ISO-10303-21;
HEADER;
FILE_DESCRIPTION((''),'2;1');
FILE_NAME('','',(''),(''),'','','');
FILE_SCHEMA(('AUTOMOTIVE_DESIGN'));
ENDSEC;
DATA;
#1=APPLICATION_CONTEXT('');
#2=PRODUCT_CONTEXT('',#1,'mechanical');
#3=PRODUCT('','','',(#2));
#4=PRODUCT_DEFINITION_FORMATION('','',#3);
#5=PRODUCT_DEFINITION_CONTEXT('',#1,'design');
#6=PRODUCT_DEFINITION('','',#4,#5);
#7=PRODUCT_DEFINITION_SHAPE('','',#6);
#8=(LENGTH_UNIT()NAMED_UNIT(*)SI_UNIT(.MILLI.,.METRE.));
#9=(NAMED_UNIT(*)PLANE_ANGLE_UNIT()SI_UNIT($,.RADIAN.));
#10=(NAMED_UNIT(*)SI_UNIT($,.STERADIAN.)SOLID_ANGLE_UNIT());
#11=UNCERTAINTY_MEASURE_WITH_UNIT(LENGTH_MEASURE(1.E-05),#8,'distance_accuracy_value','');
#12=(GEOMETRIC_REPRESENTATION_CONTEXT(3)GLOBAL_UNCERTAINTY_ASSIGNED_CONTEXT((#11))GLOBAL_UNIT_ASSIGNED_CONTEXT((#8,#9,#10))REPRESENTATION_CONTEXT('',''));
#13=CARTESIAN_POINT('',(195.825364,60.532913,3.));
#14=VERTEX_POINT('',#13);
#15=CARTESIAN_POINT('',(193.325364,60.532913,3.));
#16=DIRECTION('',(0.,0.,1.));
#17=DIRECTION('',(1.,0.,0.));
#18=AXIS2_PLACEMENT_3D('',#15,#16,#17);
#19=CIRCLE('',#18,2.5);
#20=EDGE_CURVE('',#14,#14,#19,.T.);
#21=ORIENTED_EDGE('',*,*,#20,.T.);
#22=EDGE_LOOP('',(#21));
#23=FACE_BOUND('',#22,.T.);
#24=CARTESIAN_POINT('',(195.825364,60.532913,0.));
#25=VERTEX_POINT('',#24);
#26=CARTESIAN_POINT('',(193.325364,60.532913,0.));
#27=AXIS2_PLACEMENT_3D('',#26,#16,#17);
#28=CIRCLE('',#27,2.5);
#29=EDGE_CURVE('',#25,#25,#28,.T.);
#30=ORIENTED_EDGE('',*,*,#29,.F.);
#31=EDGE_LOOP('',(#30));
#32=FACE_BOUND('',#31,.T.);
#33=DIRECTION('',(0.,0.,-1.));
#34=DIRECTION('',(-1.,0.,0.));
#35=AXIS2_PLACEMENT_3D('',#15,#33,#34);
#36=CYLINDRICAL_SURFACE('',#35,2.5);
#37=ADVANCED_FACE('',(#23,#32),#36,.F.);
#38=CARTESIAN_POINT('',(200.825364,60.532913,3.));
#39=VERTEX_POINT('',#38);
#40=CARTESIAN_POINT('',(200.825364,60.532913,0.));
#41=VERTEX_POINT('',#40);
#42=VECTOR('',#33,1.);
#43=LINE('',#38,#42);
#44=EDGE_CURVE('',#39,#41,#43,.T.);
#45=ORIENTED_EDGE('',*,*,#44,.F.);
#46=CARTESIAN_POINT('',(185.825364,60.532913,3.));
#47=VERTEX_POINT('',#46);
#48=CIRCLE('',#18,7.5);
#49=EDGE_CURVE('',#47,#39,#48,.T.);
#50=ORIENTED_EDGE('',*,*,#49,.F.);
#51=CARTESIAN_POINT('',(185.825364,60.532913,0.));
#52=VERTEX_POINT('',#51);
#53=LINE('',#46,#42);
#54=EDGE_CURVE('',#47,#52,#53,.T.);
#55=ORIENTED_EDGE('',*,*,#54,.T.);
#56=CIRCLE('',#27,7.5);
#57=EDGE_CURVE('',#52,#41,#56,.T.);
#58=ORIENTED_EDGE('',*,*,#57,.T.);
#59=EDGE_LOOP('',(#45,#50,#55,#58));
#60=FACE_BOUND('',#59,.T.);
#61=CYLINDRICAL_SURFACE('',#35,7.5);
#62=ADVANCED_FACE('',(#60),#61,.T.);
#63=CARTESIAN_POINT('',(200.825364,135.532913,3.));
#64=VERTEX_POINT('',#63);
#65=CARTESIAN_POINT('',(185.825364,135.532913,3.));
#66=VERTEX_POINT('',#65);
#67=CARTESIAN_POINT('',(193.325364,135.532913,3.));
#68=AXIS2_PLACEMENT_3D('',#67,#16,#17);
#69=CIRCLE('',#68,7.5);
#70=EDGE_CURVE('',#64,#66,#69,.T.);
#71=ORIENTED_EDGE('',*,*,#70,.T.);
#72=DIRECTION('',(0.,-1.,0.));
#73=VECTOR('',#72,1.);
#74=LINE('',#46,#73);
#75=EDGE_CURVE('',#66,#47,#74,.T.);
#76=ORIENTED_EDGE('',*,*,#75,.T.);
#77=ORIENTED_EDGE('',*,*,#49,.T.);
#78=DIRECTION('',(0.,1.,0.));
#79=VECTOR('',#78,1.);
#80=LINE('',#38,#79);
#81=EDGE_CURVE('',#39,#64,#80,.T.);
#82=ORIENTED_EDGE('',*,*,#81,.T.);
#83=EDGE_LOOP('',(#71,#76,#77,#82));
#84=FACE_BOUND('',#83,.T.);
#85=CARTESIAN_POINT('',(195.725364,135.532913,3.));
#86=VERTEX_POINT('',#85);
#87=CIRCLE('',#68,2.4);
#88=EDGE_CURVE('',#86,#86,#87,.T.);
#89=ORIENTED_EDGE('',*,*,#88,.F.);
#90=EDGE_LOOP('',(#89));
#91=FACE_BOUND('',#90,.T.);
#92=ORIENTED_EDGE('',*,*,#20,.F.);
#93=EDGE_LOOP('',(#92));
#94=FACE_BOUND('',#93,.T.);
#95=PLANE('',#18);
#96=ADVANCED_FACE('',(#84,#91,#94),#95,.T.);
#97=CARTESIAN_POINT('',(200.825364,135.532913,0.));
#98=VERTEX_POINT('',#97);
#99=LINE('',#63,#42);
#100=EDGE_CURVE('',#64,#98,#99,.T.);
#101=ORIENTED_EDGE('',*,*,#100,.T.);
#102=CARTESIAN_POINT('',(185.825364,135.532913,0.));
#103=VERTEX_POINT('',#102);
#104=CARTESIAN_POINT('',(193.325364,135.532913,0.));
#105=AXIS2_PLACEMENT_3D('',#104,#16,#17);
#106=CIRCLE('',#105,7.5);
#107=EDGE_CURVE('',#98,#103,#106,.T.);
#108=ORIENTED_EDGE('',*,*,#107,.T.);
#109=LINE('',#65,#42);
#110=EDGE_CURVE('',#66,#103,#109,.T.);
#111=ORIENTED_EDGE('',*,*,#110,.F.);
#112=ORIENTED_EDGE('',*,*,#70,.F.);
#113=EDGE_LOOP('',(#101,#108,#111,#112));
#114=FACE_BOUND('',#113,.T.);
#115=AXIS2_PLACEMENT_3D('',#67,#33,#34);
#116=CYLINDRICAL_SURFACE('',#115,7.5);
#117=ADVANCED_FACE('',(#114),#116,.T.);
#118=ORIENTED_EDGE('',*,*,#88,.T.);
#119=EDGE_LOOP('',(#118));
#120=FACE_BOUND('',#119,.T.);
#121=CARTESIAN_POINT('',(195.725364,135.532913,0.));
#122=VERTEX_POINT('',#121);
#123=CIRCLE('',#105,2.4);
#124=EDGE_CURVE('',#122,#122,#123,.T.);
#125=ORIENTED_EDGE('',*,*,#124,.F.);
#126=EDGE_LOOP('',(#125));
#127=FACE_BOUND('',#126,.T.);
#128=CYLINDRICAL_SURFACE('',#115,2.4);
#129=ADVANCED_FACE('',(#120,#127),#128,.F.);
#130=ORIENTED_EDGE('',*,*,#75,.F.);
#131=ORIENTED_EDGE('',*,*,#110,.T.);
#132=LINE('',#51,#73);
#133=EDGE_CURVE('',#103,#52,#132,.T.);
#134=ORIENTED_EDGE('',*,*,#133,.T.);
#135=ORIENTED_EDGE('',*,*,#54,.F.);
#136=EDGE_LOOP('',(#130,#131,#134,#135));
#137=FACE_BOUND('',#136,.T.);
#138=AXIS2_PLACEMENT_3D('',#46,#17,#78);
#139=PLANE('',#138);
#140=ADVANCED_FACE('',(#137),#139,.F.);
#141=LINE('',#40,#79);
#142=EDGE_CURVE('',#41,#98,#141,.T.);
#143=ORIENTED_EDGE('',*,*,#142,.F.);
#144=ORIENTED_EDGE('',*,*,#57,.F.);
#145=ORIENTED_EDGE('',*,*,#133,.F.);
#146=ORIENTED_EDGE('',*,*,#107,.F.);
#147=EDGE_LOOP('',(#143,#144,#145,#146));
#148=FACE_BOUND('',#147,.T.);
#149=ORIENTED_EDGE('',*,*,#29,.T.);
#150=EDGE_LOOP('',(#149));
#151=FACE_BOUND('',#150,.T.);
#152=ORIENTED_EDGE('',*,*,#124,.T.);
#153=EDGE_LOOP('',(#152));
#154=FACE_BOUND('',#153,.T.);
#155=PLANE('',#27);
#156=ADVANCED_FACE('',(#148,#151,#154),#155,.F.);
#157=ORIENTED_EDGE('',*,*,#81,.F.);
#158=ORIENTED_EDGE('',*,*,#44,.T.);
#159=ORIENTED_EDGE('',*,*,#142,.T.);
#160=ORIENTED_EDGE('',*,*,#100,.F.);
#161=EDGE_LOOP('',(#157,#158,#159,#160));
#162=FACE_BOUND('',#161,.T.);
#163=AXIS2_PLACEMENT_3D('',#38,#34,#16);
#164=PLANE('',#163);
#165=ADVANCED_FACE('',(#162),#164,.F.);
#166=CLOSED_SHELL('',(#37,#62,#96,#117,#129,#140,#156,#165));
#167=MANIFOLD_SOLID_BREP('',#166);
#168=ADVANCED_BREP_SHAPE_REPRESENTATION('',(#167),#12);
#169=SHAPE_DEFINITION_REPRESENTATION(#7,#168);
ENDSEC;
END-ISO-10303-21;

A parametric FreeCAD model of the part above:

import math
import FreeCAD as App
import Part
import Sketcher
Q = App.Units.Quantity

doc = App.newDocument("Part")
body = doc.addObject("PartDesign::Body", "Body")

sketch1 = body.newObject("Sketcher::SketchObject", "Sketch")
sketch1.AttachmentSupport = (doc.getObject("XY_Plane"), [""])
sketch1.MapMode = "FlatFace"
sketch1.addGeometry(Part.LineSegment(App.Vector(185.825364, 135.532913, 0), App.Vector(185.825364, 60.532913, 0)), False)
sketch1.addGeometry(Part.ArcOfCircle(Part.Circle(App.Vector(193.325364, 60.532913, 0), App.Vector(0, 0, 1), 7.5), math.radians(180), math.radians(360)), False)
sketch1.addGeometry(Part.LineSegment(App.Vector(200.825364, 60.532913, 0), App.Vector(200.825364, 135.532913, 0)), False)
sketch1.addGeometry(Part.ArcOfCircle(Part.Circle(App.Vector(193.325364, 135.532913, 0), App.Vector(0, 0, 1), 7.5), math.radians(0), math.radians(180)), False)
sketch1.addGeometry(Part.Circle(App.Vector(193.325364, 60.532913, 0), App.Vector(0, 0, 1), 2.5), False)
sketch1.addGeometry(Part.Circle(App.Vector(193.325364, 135.532913, 0), App.Vector(0, 0, 1), 2.4), False)
sketch1.addConstraint(Sketcher.Constraint("Tangent", 0, 2, 1, 1))
sketch1.addConstraint(Sketcher.Constraint("Tangent", 1, 2, 2, 1))
sketch1.addConstraint(Sketcher.Constraint("Tangent", 2, 2, 3, 1))
sketch1.addConstraint(Sketcher.Constraint("Tangent", 3, 2, 0, 1))
sketch1.addConstraint(Sketcher.Constraint("Vertical", 0))
sketch1.addConstraint(Sketcher.Constraint("Vertical", 2))
sketch1.addConstraint(Sketcher.Constraint("Coincident", 4, 3, 1, 3))
sketch1.addConstraint(Sketcher.Constraint("Coincident", 5, 3, 3, 3))
sketch1.addConstraint(Sketcher.Constraint("Diameter", 4, Q("5 mm")))
sketch1.addConstraint(Sketcher.Constraint("Diameter", 5, Q("4.8 mm")))
sketch1.addConstraint(Sketcher.Constraint("Radius", 1, Q("7.5 mm")))
sketch1.addConstraint(Sketcher.Constraint("DistanceY", 0, 2, 0, 1, Q("75 mm")))
sketch1.addConstraint(Sketcher.Constraint("DistanceX", -1, 1, 1, 3, Q("193.325364 mm")))
sketch1.addConstraint(Sketcher.Constraint("DistanceY", -1, 1, 1, 3, Q("60.532913 mm")))
pad1 = body.newObject("PartDesign::Pad", "Pad")
pad1.Profile = sketch1
pad1.Length = 3

doc.recompute()
